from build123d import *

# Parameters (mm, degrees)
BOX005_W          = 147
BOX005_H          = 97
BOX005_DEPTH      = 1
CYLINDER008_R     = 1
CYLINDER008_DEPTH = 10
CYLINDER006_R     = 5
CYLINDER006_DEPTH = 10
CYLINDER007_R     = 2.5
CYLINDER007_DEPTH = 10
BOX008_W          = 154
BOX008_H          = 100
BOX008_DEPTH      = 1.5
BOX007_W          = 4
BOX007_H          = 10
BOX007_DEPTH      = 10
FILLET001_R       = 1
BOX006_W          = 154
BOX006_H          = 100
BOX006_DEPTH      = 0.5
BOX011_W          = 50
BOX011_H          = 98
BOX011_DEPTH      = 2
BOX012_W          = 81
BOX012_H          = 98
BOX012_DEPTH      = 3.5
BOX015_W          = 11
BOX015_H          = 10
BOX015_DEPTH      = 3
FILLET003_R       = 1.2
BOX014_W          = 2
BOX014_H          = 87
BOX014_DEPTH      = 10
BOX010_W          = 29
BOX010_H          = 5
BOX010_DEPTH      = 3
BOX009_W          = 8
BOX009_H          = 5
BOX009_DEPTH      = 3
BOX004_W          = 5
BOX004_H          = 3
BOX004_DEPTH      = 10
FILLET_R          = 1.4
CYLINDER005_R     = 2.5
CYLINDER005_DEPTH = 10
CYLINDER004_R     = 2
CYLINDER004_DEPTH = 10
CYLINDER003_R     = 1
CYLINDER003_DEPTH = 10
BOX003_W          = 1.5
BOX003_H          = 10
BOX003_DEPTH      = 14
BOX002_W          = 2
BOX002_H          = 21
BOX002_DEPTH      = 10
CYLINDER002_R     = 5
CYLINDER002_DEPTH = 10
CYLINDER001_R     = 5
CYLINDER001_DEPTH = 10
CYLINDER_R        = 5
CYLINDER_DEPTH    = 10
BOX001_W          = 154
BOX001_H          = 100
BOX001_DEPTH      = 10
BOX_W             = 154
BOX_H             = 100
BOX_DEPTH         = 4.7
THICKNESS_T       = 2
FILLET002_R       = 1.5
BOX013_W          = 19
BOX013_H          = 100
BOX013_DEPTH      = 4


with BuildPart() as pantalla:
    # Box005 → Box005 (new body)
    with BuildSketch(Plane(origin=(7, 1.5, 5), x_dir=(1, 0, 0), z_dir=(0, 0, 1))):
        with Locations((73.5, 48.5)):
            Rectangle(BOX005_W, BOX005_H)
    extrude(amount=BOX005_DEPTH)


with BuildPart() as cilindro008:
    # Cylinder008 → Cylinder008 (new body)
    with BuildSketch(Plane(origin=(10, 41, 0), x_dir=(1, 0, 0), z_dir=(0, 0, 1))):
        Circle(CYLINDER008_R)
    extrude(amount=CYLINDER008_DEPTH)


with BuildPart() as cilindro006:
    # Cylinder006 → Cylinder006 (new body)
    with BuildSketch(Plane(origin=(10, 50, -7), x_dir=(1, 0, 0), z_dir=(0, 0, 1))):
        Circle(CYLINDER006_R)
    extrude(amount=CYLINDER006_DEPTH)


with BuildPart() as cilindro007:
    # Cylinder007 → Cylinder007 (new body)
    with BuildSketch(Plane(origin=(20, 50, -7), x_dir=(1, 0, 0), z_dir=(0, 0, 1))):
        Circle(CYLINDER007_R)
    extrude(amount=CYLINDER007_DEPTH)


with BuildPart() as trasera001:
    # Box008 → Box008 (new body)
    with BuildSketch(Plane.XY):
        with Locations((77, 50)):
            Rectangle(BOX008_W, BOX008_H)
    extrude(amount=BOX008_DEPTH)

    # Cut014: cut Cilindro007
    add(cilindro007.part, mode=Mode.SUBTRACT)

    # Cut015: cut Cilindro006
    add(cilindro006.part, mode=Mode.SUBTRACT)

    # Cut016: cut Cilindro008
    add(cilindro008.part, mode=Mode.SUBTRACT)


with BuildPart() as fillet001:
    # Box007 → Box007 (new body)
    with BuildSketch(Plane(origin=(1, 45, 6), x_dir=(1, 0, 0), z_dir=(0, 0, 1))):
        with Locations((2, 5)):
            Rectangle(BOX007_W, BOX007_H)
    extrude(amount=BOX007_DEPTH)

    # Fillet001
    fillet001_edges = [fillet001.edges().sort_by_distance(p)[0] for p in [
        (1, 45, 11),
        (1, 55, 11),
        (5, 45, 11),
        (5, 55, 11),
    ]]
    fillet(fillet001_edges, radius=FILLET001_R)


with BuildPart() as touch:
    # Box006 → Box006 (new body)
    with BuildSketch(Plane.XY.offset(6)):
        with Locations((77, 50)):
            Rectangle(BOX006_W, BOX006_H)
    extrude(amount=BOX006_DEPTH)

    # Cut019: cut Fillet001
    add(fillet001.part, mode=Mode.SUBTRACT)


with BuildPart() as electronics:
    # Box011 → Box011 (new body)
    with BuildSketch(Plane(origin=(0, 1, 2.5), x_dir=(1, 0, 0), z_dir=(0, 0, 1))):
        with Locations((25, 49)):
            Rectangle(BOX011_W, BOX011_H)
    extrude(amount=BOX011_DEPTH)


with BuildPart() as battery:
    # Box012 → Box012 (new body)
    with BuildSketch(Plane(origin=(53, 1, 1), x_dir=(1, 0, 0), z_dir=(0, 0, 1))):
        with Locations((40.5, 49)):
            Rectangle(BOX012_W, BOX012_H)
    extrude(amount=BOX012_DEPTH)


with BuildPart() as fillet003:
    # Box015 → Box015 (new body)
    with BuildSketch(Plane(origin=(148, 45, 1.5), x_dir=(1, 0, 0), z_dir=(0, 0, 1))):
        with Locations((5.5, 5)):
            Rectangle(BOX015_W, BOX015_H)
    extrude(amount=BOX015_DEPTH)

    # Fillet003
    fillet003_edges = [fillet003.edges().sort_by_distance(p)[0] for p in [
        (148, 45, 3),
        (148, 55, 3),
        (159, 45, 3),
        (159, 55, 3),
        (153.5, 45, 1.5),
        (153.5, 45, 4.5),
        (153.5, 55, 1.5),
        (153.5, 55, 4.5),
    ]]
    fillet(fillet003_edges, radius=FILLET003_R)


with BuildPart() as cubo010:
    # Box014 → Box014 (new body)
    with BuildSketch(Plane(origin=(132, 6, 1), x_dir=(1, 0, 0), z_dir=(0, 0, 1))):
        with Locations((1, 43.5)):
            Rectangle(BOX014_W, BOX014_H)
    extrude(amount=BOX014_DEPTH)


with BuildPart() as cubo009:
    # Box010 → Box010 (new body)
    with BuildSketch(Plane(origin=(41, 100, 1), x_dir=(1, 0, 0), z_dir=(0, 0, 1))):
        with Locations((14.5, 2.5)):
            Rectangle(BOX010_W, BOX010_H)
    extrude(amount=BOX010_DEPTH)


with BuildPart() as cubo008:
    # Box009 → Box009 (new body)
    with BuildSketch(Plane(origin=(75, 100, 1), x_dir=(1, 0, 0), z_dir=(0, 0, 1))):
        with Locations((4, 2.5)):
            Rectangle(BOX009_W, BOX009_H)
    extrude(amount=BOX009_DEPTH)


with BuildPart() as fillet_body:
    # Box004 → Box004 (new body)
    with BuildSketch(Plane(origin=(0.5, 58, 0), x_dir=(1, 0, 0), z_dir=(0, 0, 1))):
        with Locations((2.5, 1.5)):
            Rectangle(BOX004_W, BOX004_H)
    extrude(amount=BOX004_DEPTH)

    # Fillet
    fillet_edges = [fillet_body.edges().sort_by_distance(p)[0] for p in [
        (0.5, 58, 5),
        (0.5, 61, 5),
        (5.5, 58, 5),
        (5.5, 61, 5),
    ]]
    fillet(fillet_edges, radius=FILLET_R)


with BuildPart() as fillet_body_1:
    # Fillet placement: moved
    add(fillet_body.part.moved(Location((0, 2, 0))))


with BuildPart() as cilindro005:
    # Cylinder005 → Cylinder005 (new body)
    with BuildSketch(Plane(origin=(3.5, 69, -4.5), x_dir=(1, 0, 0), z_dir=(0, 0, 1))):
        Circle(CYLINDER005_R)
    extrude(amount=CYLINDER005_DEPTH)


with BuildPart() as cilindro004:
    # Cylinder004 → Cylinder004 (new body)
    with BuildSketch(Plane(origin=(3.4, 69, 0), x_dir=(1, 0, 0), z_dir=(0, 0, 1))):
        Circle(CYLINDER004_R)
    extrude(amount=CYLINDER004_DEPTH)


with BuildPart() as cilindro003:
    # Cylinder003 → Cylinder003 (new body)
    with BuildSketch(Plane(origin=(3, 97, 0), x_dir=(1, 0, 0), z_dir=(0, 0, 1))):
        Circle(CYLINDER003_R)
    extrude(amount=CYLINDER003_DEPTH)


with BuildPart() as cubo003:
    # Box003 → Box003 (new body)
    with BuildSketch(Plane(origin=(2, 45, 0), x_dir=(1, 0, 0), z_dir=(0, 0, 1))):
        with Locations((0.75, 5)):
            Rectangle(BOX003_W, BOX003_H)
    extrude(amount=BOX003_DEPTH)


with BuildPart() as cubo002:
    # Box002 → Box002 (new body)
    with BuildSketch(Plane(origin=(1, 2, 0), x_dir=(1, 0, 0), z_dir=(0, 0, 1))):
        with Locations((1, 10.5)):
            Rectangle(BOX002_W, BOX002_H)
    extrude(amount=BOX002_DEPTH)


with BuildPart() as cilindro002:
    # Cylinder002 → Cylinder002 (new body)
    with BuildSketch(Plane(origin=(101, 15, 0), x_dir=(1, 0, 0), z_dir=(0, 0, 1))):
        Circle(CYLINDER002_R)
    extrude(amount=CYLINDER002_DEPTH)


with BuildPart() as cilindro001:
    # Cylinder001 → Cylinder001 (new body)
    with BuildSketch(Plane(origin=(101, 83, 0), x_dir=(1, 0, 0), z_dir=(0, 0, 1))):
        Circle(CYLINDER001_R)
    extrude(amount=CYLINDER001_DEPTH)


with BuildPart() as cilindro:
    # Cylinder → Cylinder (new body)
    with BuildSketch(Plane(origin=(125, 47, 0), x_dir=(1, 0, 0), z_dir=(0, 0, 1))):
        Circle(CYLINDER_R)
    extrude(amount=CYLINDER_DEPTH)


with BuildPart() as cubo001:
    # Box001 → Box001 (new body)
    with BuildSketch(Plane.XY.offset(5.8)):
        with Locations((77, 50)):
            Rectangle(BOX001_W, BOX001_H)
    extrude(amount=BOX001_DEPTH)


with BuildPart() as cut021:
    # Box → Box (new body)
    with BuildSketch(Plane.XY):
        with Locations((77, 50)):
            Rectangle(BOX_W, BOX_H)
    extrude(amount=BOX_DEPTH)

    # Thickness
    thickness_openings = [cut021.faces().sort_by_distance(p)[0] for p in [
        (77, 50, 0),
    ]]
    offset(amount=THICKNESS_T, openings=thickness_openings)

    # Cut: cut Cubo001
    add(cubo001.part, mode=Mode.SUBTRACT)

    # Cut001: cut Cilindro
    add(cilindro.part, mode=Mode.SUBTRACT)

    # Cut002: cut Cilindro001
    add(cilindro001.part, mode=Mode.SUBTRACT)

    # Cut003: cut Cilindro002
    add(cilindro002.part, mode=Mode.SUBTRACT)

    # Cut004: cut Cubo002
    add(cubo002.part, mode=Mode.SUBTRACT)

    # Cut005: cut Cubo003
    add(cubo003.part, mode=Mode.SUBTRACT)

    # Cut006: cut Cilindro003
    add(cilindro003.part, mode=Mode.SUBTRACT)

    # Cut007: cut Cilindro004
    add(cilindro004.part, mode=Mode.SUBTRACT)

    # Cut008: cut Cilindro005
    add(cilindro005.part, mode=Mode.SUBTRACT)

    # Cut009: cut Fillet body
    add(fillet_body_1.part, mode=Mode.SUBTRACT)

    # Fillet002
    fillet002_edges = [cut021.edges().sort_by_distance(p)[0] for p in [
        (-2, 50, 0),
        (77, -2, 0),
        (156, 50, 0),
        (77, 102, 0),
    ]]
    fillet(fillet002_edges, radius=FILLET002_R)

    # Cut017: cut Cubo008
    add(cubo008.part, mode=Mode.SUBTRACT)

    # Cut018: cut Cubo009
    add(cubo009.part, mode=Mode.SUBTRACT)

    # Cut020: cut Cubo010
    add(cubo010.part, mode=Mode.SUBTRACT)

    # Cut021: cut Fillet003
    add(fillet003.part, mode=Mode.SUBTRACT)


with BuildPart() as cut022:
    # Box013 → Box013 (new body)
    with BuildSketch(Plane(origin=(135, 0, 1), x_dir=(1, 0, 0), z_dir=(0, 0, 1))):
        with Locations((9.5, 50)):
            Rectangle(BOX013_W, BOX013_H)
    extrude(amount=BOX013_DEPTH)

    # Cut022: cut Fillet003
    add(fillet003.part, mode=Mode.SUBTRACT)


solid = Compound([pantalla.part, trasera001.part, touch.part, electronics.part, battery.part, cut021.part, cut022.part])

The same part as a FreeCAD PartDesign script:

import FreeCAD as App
import Part
import Sketcher

V = App.Vector
Q = App.Units.Quantity


def edges_at(feature, points):
    """Names of the edges that pass closest to the given points."""
    edges = feature.Shape.Edges
    near = lambda p: min(range(len(edges)), key=lambda i: edges[i].distToShape(Part.Vertex(*p))[0])
    return sorted({f"Edge{near(p) + 1}" for p in points})


def faces_at(feature, points):
    """Names of the faces that lie closest to the given points."""
    faces = feature.Shape.Faces
    near = lambda p: min(range(len(faces)), key=lambda i: faces[i].distToShape(Part.Vertex(*p))[0])
    return sorted({f"Face{near(p) + 1}" for p in points})


def add_polygon(sketch, points):
    """Adds a closed chain of lines whose ends are joined by coincident constraints."""
    first, n = sketch.GeometryCount, len(points)
    for a, b in zip(points, points[1:] + points[:1]):
        sketch.addGeometry(Part.LineSegment(App.Vector(*a, 0), App.Vector(*b, 0)), False)
    for i in range(n):
        sketch.addConstraint(Sketcher.Constraint("Coincident", first + i, 2, first + (i + 1) % n, 1))

doc = App.newDocument("Part")
body = doc.addObject("PartDesign::Body", "Body")

# Sketch on XY plane
sketch1 = body.newObject("Sketcher::SketchObject", "Sketch")
sketch1.AttachmentSupport = (doc.getObject("XY_Plane"), [""])
sketch1.MapMode = "FlatFace"
sketch1.AttachmentOffset = App.Placement(V(0, 0, 5), App.Rotation())
add_polygon(sketch1, [(7, 98.5), (7, 1.5), (154, 1.5), (154, 98.5)])  # lines 0-3
sketch1.addConstraint(Sketcher.Constraint("Vertical", 0))
sketch1.addConstraint(Sketcher.Constraint("Horizontal", 1))
sketch1.addConstraint(Sketcher.Constraint("Vertical", 2))
sketch1.addConstraint(Sketcher.Constraint("Horizontal", 3))
sketch1.addConstraint(Sketcher.Constraint("DistanceX", 1, 1, 1, 2, Q("147 mm")))
sketch1.addConstraint(Sketcher.Constraint("DistanceY", 0, 2, 0, 1, Q("97 mm")))
sketch1.addConstraint(Sketcher.Constraint("DistanceX", -1, 1, 0, 2, Q("7 mm")))
sketch1.addConstraint(Sketcher.Constraint("DistanceY", -1, 1, 0, 2, Q("1.5 mm")))
pad1 = body.newObject("PartDesign::Pad", "Pad")
pad1.Profile = sketch1
pad1.Length = 1
body2 = doc.addObject("PartDesign::Body", "Body001")

# Sketch on XY plane
sketch2 = body2.newObject("Sketcher::SketchObject", "Sketch001")
sketch2.AttachmentSupport = (doc.getObject("XY_Plane001"), [""])
sketch2.MapMode = "FlatFace"
sketch2.addGeometry(Part.Circle(V(10, 41, 0), V(0, 0, 1), 1), False)
sketch2.addConstraint(Sketcher.Constraint("Diameter", 0, Q("2 mm")))
sketch2.addConstraint(Sketcher.Constraint("DistanceX", -1, 1, 0, 3, Q("10 mm")))
sketch2.addConstraint(Sketcher.Constraint("DistanceY", -1, 1, 0, 3, Q("41 mm")))
pad2 = body2.newObject("PartDesign::Pad", "Pad001")
pad2.Profile = sketch2
pad2.Length = 10
body3 = doc.addObject("PartDesign::Body", "Body002")

# Sketch on XY plane
sketch3 = body3.newObject("Sketcher::SketchObject", "Sketch002")
sketch3.AttachmentSupport = (doc.getObject("XY_Plane002"), [""])
sketch3.MapMode = "FlatFace"
sketch3.AttachmentOffset = App.Placement(V(0, 0, -7), App.Rotation())
sketch3.addGeometry(Part.Circle(V(10, 50, 0), V(0, 0, 1), 5), False)
sketch3.addConstraint(Sketcher.Constraint("Diameter", 0, Q("10 mm")))
sketch3.addConstraint(Sketcher.Constraint("DistanceX", -1, 1, 0, 3, Q("10 mm")))
sketch3.addConstraint(Sketcher.Constraint("DistanceY", -1, 1, 0, 3, Q("50 mm")))
pad3 = body3.newObject("PartDesign::Pad", "Pad002")
pad3.Profile = sketch3
pad3.Length = 10
body4 = doc.addObject("PartDesign::Body", "Body003")

# Sketch on XY plane
sketch4 = body4.newObject("Sketcher::SketchObject", "Sketch003")
sketch4.AttachmentSupport = (doc.getObject("XY_Plane003"), [""])
sketch4.MapMode = "FlatFace"
sketch4.AttachmentOffset = App.Placement(V(0, 0, -7), App.Rotation())
sketch4.addGeometry(Part.Circle(V(20, 50, 0), V(0, 0, 1), 2.5), False)
sketch4.addConstraint(Sketcher.Constraint("Diameter", 0, Q("5 mm")))
sketch4.addConstraint(Sketcher.Constraint("DistanceX", -1, 1, 0, 3, Q("20 mm")))
sketch4.addConstraint(Sketcher.Constraint("DistanceY", -1, 1, 0, 3, Q("50 mm")))
pad4 = body4.newObject("PartDesign::Pad", "Pad003")
pad4.Profile = sketch4
pad4.Length = 10
body5 = doc.addObject("PartDesign::Body", "Body004")

# Sketch on XY plane
sketch5 = body5.newObject("Sketcher::SketchObject", "Sketch004")
sketch5.AttachmentSupport = (doc.getObject("XY_Plane004"), [""])
sketch5.MapMode = "FlatFace"
add_polygon(sketch5, [(0, 100), (0, 0), (154, 0), (154, 100)])  # lines 0-3
sketch5.addConstraint(Sketcher.Constraint("Vertical", 0))
sketch5.addConstraint(Sketcher.Constraint("Horizontal", 1))
sketch5.addConstraint(Sketcher.Constraint("Vertical", 2))
sketch5.addConstraint(Sketcher.Constraint("Horizontal", 3))
sketch5.addConstraint(Sketcher.Constraint("Coincident", 0, 2, -1, 1))
sketch5.addConstraint(Sketcher.Constraint("DistanceX", 1, 1, 1, 2, Q("154 mm")))
sketch5.addConstraint(Sketcher.Constraint("DistanceY", 0, 2, 0, 1, Q("100 mm")))
pad5 = body5.newObject("PartDesign::Pad", "Pad004")
pad5.Profile = sketch5
pad5.Length = 1.5
doc.recompute()

boolean = body5.newObject("PartDesign::Boolean", "Boolean")
boolean.Type = "Cut"
boolean.addObjects([body4])
doc.recompute()

boolean2 = body5.newObject("PartDesign::Boolean", "Boolean001")
boolean2.Type = "Cut"
boolean2.addObjects([body3])
doc.recompute()

boolean3 = body5.newObject("PartDesign::Boolean", "Boolean002")
boolean3.Type = "Cut"
boolean3.addObjects([body2])
body6 = doc.addObject("PartDesign::Body", "Body005")

# Sketch on XY plane
sketch6 = body6.newObject("Sketcher::SketchObject", "Sketch005")
sketch6.AttachmentSupport = (doc.getObject("XY_Plane005"), [""])
sketch6.MapMode = "FlatFace"
sketch6.AttachmentOffset = App.Placement(V(0, 0, 6), App.Rotation())
add_polygon(sketch6, [(1, 55), (1, 45), (5, 45), (5, 55)])  # lines 0-3
sketch6.addConstraint(Sketcher.Constraint("Vertical", 0))
sketch6.addConstraint(Sketcher.Constraint("Horizontal", 1))
sketch6.addConstraint(Sketcher.Constraint("Vertical", 2))
sketch6.addConstraint(Sketcher.Constraint("Horizontal", 3))
sketch6.addConstraint(Sketcher.Constraint("DistanceX", 1, 1, 1, 2, Q("4 mm")))
sketch6.addConstraint(Sketcher.Constraint("DistanceY", 0, 2, 0, 1, Q("10 mm")))
sketch6.addConstraint(Sketcher.Constraint("DistanceX", -1, 1, 0, 2, Q("1 mm")))
sketch6.addConstraint(Sketcher.Constraint("DistanceY", -1, 1, 0, 2, Q("45 mm")))
pad6 = body6.newObject("PartDesign::Pad", "Pad005")
pad6.Profile = sketch6
pad6.Length = 10
doc.recompute()

fillet = body6.newObject("PartDesign::Fillet", "Fillet")
fillet.Base = (pad6, edges_at(pad6, [
    (1, 45, 11),
    (1, 55, 11),
    (5, 45, 11),
    (5, 55, 11),
]))
fillet.Radius = 1
body7 = doc.addObject("PartDesign::Body", "Body006")

# Sketch on XY plane
sketch7 = body7.newObject("Sketcher::SketchObject", "Sketch006")
sketch7.AttachmentSupport = (doc.getObject("XY_Plane006"), [""])
sketch7.MapMode = "FlatFace"
sketch7.AttachmentOffset = App.Placement(V(0, 0, 6), App.Rotation())
add_polygon(sketch7, [(0, 100), (0, 0), (154, 0), (154, 100)])  # lines 0-3
sketch7.addConstraint(Sketcher.Constraint("Vertical", 0))
sketch7.addConstraint(Sketcher.Constraint("Horizontal", 1))
sketch7.addConstraint(Sketcher.Constraint("Vertical", 2))
sketch7.addConstraint(Sketcher.Constraint("Horizontal", 3))
sketch7.addConstraint(Sketcher.Constraint("Coincident", 0, 2, -1, 1))
sketch7.addConstraint(Sketcher.Constraint("DistanceX", 1, 1, 1, 2, Q("154 mm")))
sketch7.addConstraint(Sketcher.Constraint("DistanceY", 0, 2, 0, 1, Q("100 mm")))
pad7 = body7.newObject("PartDesign::Pad", "Pad006")
pad7.Profile = sketch7
pad7.Length = 0.5
doc.recompute()

boolean4 = body7.newObject("PartDesign::Boolean", "Boolean003")
boolean4.Type = "Cut"
boolean4.addObjects([body6])
body8 = doc.addObject("PartDesign::Body", "Body007")

# Sketch on XY plane
sketch8 = body8.newObject("Sketcher::SketchObject", "Sketch007")
sketch8.AttachmentSupport = (doc.getObject("XY_Plane007"), [""])
sketch8.MapMode = "FlatFace"
sketch8.AttachmentOffset = App.Placement(V(0, 0, 2.5), App.Rotation())
add_polygon(sketch8, [(0, 99), (0, 1), (50, 1), (50, 99)])  # lines 0-3
sketch8.addConstraint(Sketcher.Constraint("Vertical", 0))
sketch8.addConstraint(Sketcher.Constraint("Horizontal", 1))
sketch8.addConstraint(Sketcher.Constraint("Vertical", 2))
sketch8.addConstraint(Sketcher.Constraint("Horizontal", 3))
sketch8.addConstraint(Sketcher.Constraint("PointOnObject", 0, 2, -2))
sketch8.addConstraint(Sketcher.Constraint("DistanceX", 1, 1, 1, 2, Q("50 mm")))
sketch8.addConstraint(Sketcher.Constraint("DistanceY", 0, 2, 0, 1, Q("98 mm")))
sketch8.addConstraint(Sketcher.Constraint("DistanceY", -1, 1, 0, 2, Q("1 mm")))
pad8 = body8.newObject("PartDesign::Pad", "Pad007")
pad8.Profile = sketch8
pad8.Length = 2
body9 = doc.addObject("PartDesign::Body", "Body008")

# Sketch on XY plane
sketch9 = body9.newObject("Sketcher::SketchObject", "Sketch008")
sketch9.AttachmentSupport = (doc.getObject("XY_Plane008"), [""])
sketch9.MapMode = "FlatFace"
sketch9.AttachmentOffset = App.Placement(V(0, 0, 1), App.Rotation())
add_polygon(sketch9, [(53, 99), (53, 1), (134, 1), (134, 99)])  # lines 0-3
sketch9.addConstraint(Sketcher.Constraint("Vertical", 0))
sketch9.addConstraint(Sketcher.Constraint("Horizontal", 1))
sketch9.addConstraint(Sketcher.Constraint("Vertical", 2))
sketch9.addConstraint(Sketcher.Constraint("Horizontal", 3))
sketch9.addConstraint(Sketcher.Constraint("DistanceX", 1, 1, 1, 2, Q("81 mm")))
sketch9.addConstraint(Sketcher.Constraint("DistanceY", 0, 2, 0, 1, Q("98 mm")))
sketch9.addConstraint(Sketcher.Constraint("DistanceX", -1, 1, 0, 2, Q("53 mm")))
sketch9.addConstraint(Sketcher.Constraint("DistanceY", -1, 1, 0, 2, Q("1 mm")))
pad9 = body9.newObject("PartDesign::Pad", "Pad008")
pad9.Profile = sketch9
pad9.Length = 3.5
body10 = doc.addObject("PartDesign::Body", "Body009")

# Sketch on XY plane
sketch10 = body10.newObject("Sketcher::SketchObject", "Sketch009")
sketch10.AttachmentSupport = (doc.getObject("XY_Plane009"), [""])
sketch10.MapMode = "FlatFace"
sketch10.AttachmentOffset = App.Placement(V(0, 0, 1.5), App.Rotation())
add_polygon(sketch10, [(148, 55), (148, 45), (159, 45), (159, 55)])  # lines 0-3
sketch10.addConstraint(Sketcher.Constraint("Vertical", 0))
sketch10.addConstraint(Sketcher.Constraint("Horizontal", 1))
sketch10.addConstraint(Sketcher.Constraint("Vertical", 2))
sketch10.addConstraint(Sketcher.Constraint("Horizontal", 3))
sketch10.addConstraint(Sketcher.Constraint("DistanceX", 1, 1, 1, 2, Q("11 mm")))
sketch10.addConstraint(Sketcher.Constraint("DistanceY", 0, 2, 0, 1, Q("10 mm")))
sketch10.addConstraint(Sketcher.Constraint("DistanceX", -1, 1, 0, 2, Q("148 mm")))
sketch10.addConstraint(Sketcher.Constraint("DistanceY", -1, 1, 0, 2, Q("45 mm")))
pad10 = body10.newObject("PartDesign::Pad", "Pad009")
pad10.Profile = sketch10
pad10.Length = 3
doc.recompute()

fillet2 = body10.newObject("PartDesign::Fillet", "Fillet001")
fillet2.Base = (pad10, edges_at(pad10, [
    (148, 45, 3),
    (148, 55, 3),
    (159, 45, 3),
    (159, 55, 3),
    (153.5, 45, 1.5),
    (153.5, 45, 4.5),
    (153.5, 55, 1.5),
    (153.5, 55, 4.5),
]))
fillet2.Radius = 1.2
body11 = doc.addObject("PartDesign::Body", "Body010")

# Sketch on XY plane
sketch11 = body11.newObject("Sketcher::SketchObject", "Sketch010")
sketch11.AttachmentSupport = (doc.getObject("XY_Plane010"), [""])
sketch11.MapMode = "FlatFace"
sketch11.AttachmentOffset = App.Placement(V(0, 0, 1), App.Rotation())
add_polygon(sketch11, [(132, 93), (132, 6), (134, 6), (134, 93)])  # lines 0-3
sketch11.addConstraint(Sketcher.Constraint("Vertical", 0))
sketch11.addConstraint(Sketcher.Constraint("Horizontal", 1))
sketch11.addConstraint(Sketcher.Constraint("Vertical", 2))
sketch11.addConstraint(Sketcher.Constraint("Horizontal", 3))
sketch11.addConstraint(Sketcher.Constraint("DistanceX", 1, 1, 1, 2, Q("2 mm")))
sketch11.addConstraint(Sketcher.Constraint("DistanceY", 0, 2, 0, 1, Q("87 mm")))
sketch11.addConstraint(Sketcher.Constraint("DistanceX", -1, 1, 0, 2, Q("132 mm")))
sketch11.addConstraint(Sketcher.Constraint("DistanceY", -1, 1, 0, 2, Q("6 mm")))
pad11 = body11.newObject("PartDesign::Pad", "Pad010")
pad11.Profile = sketch11
pad11.Length = 10
body12 = doc.addObject("PartDesign::Body", "Body011")

# Sketch on XY plane
sketch12 = body12.newObject("Sketcher::SketchObject", "Sketch011")
sketch12.AttachmentSupport = (doc.getObject("XY_Plane011"), [""])
sketch12.MapMode = "FlatFace"
sketch12.AttachmentOffset = App.Placement(V(0, 0, 1), App.Rotation())
add_polygon(sketch12, [(41, 105), (41, 100), (70, 100), (70, 105)])  # lines 0-3
sketch12.addConstraint(Sketcher.Constraint("Vertical", 0))
sketch12.addConstraint(Sketcher.Constraint("Horizontal", 1))
sketch12.addConstraint(Sketcher.Constraint("Vertical", 2))
sketch12.addConstraint(Sketcher.Constraint("Horizontal", 3))
sketch12.addConstraint(Sketcher.Constraint("DistanceX", 1, 1, 1, 2, Q("29 mm")))
sketch12.addConstraint(Sketcher.Constraint("DistanceY", 0, 2, 0, 1, Q("5 mm")))
sketch12.addConstraint(Sketcher.Constraint("DistanceX", -1, 1, 0, 2, Q("41 mm")))
sketch12.addConstraint(Sketcher.Constraint("DistanceY", -1, 1, 0, 2, Q("100 mm")))
pad12 = body12.newObject("PartDesign::Pad", "Pad011")
pad12.Profile = sketch12
pad12.Length = 3
body13 = doc.addObject("PartDesign::Body", "Body012")

# Sketch on XY plane
sketch13 = body13.newObject("Sketcher::SketchObject", "Sketch012")
sketch13.AttachmentSupport = (doc.getObject("XY_Plane012"), [""])
sketch13.MapMode = "FlatFace"
sketch13.AttachmentOffset = App.Placement(V(0, 0, 1), App.Rotation())
add_polygon(sketch13, [(75, 105), (75, 100), (83, 100), (83, 105)])  # lines 0-3
sketch13.addConstraint(Sketcher.Constraint("Vertical", 0))
sketch13.addConstraint(Sketcher.Constraint("Horizontal", 1))
sketch13.addConstraint(Sketcher.Constraint("Vertical", 2))
sketch13.addConstraint(Sketcher.Constraint("Horizontal", 3))
sketch13.addConstraint(Sketcher.Constraint("DistanceX", 1, 1, 1, 2, Q("8 mm")))
sketch13.addConstraint(Sketcher.Constraint("DistanceY", 0, 2, 0, 1, Q("5 mm")))
sketch13.addConstraint(Sketcher.Constraint("DistanceX", -1, 1, 0, 2, Q("75 mm")))
sketch13.addConstraint(Sketcher.Constraint("DistanceY", -1, 1, 0, 2, Q("100 mm")))
pad13 = body13.newObject("PartDesign::Pad", "Pad012")
pad13.Profile = sketch13
pad13.Length = 3
body14 = doc.addObject("PartDesign::Body", "Body013")

# Sketch on XY plane
sketch14 = body14.newObject("Sketcher::SketchObject", "Sketch013")
sketch14.AttachmentSupport = (doc.getObject("XY_Plane013"), [""])
sketch14.MapMode = "FlatFace"
add_polygon(sketch14, [(0.5, 61), (0.5, 58), (5.5, 58), (5.5, 61)])  # lines 0-3
sketch14.addConstraint(Sketcher.Constraint("Vertical", 0))
sketch14.addConstraint(Sketcher.Constraint("Horizontal", 1))
sketch14.addConstraint(Sketcher.Constraint("Vertical", 2))
sketch14.addConstraint(Sketcher.Constraint("Horizontal", 3))
sketch14.addConstraint(Sketcher.Constraint("DistanceX", 1, 1, 1, 2, Q("5 mm")))
sketch14.addConstraint(Sketcher.Constraint("DistanceY", 0, 2, 0, 1, Q("3 mm")))
sketch14.addConstraint(Sketcher.Constraint("DistanceY", -1, 1, 0, 2, Q("58 mm")))
sketch14.addConstraint(Sketcher.Constraint("DistanceX", -1, 1, 0, 2, Q("0.5 mm")))
pad14 = body14.newObject("PartDesign::Pad", "Pad013")
pad14.Profile = sketch14
pad14.Length = 10
doc.recompute()

fillet3 = body14.newObject("PartDesign::Fillet", "Fillet002")
fillet3.Base = (pad14, edges_at(pad14, [
    (0.5, 58, 5),
    (0.5, 61, 5),
    (5.5, 58, 5),
    (5.5, 61, 5),
]))
fillet3.Radius = 1.4
body15 = doc.addObject("PartDesign::Body", "Body014")
doc.recompute()

body14.Placement = App.Placement(V(0, 2, 0), App.Rotation(V(0, 0, 1), 0))
boolean5 = body15.newObject("PartDesign::Boolean", "Boolean004")
boolean5.Type = "Fuse"
boolean5.addObjects([body14])
body16 = doc.addObject("PartDesign::Body", "Body015")

# Sketch on XY plane
sketch15 = body16.newObject("Sketcher::SketchObject", "Sketch014")
sketch15.AttachmentSupport = (doc.getObject("XY_Plane015"), [""])
sketch15.MapMode = "FlatFace"
sketch15.AttachmentOffset = App.Placement(V(0, 0, -4.5), App.Rotation())
sketch15.addGeometry(Part.Circle(V(3.5, 69, 0), V(0, 0, 1), 2.5), False)
sketch15.addConstraint(Sketcher.Constraint("Diameter", 0, Q("5 mm")))
sketch15.addConstraint(Sketcher.Constraint("DistanceY", -1, 1, 0, 3, Q("69 mm")))
sketch15.addConstraint(Sketcher.Constraint("DistanceX", -1, 1, 0, 3, Q("3.5 mm")))
pad15 = body16.newObject("PartDesign::Pad", "Pad014")
pad15.Profile = sketch15
pad15.Length = 10
body17 = doc.addObject("PartDesign::Body", "Body016")

# Sketch on XY plane
sketch16 = body17.newObject("Sketcher::SketchObject", "Sketch015")
sketch16.AttachmentSupport = (doc.getObject("XY_Plane016"), [""])
sketch16.MapMode = "FlatFace"
sketch16.addGeometry(Part.Circle(V(3.4, 69, 0), V(0, 0, 1), 2), False)
sketch16.addConstraint(Sketcher.Constraint("Diameter", 0, Q("4 mm")))
sketch16.addConstraint(Sketcher.Constraint("DistanceY", -1, 1, 0, 3, Q("69 mm")))
sketch16.addConstraint(Sketcher.Constraint("DistanceX", -1, 1, 0, 3, Q("3.4 mm")))
pad16 = body17.newObject("PartDesign::Pad", "Pad015")
pad16.Profile = sketch16
pad16.Length = 10
body18 = doc.addObject("PartDesign::Body", "Body017")

# Sketch on XY plane
sketch17 = body18.newObject("Sketcher::SketchObject", "Sketch016")
sketch17.AttachmentSupport = (doc.getObject("XY_Plane017"), [""])
sketch17.MapMode = "FlatFace"
sketch17.addGeometry(Part.Circle(V(3, 97, 0), V(0, 0, 1), 1), False)
sketch17.addConstraint(Sketcher.Constraint("Diameter", 0, Q("2 mm")))
sketch17.addConstraint(Sketcher.Constraint("DistanceX", -1, 1, 0, 3, Q("3 mm")))
sketch17.addConstraint(Sketcher.Constraint("DistanceY", -1, 1, 0, 3, Q("97 mm")))
pad17 = body18.newObject("PartDesign::Pad", "Pad016")
pad17.Profile = sketch17
pad17.Length = 10
body19 = doc.addObject("PartDesign::Body", "Body018")

# Sketch on XY plane
sketch18 = body19.newObject("Sketcher::SketchObject", "Sketch017")
sketch18.AttachmentSupport = (doc.getObject("XY_Plane018"), [""])
sketch18.MapMode = "FlatFace"
add_polygon(sketch18, [(2, 55), (2, 45), (3.5, 45), (3.5, 55)])  # lines 0-3
sketch18.addConstraint(Sketcher.Constraint("Vertical", 0))
sketch18.addConstraint(Sketcher.Constraint("Horizontal", 1))
sketch18.addConstraint(Sketcher.Constraint("Vertical", 2))
sketch18.addConstraint(Sketcher.Constraint("Horizontal", 3))
sketch18.addConstraint(Sketcher.Constraint("DistanceY", 0, 2, 0, 1, Q("10 mm")))
sketch18.addConstraint(Sketcher.Constraint("DistanceX", 1, 1, 1, 2, Q("1.5 mm")))
sketch18.addConstraint(Sketcher.Constraint("DistanceX", -1, 1, 0, 2, Q("2 mm")))
sketch18.addConstraint(Sketcher.Constraint("DistanceY", -1, 1, 0, 2, Q("45 mm")))
pad18 = body19.newObject("PartDesign::Pad", "Pad017")
pad18.Profile = sketch18
pad18.Length = 14
body20 = doc.addObject("PartDesign::Body", "Body019")

# Sketch on XY plane
sketch19 = body20.newObject("Sketcher::SketchObject", "Sketch018")
sketch19.AttachmentSupport = (doc.getObject("XY_Plane019"), [""])
sketch19.MapMode = "FlatFace"
add_polygon(sketch19, [(1, 23), (1, 2), (3, 2), (3, 23)])  # lines 0-3
sketch19.addConstraint(Sketcher.Constraint("Vertical", 0))
sketch19.addConstraint(Sketcher.Constraint("Horizontal", 1))
sketch19.addConstraint(Sketcher.Constraint("Vertical", 2))
sketch19.addConstraint(Sketcher.Constraint("Horizontal", 3))
sketch19.addConstraint(Sketcher.Constraint("DistanceX", 1, 1, 1, 2, Q("2 mm")))
sketch19.addConstraint(Sketcher.Constraint("DistanceY", 0, 2, 0, 1, Q("21 mm")))
sketch19.addConstraint(Sketcher.Constraint("DistanceX", -1, 1, 0, 2, Q("1 mm")))
sketch19.addConstraint(Sketcher.Constraint("DistanceY", -1, 1, 0, 2, Q("2 mm")))
pad19 = body20.newObject("PartDesign::Pad", "Pad018")
pad19.Profile = sketch19
pad19.Length = 10
body21 = doc.addObject("PartDesign::Body", "Body020")

# Sketch on XY plane
sketch20 = body21.newObject("Sketcher::SketchObject", "Sketch019")
sketch20.AttachmentSupport = (doc.getObject("XY_Plane020"), [""])
sketch20.MapMode = "FlatFace"
sketch20.addGeometry(Part.Circle(V(101, 15, 0), V(0, 0, 1), 5), False)
sketch20.addConstraint(Sketcher.Constraint("Diameter", 0, Q("10 mm")))
sketch20.addConstraint(Sketcher.Constraint("DistanceX", -1, 1, 0, 3, Q("101 mm")))
sketch20.addConstraint(Sketcher.Constraint("DistanceY", -1, 1, 0, 3, Q("15 mm")))
pad20 = body21.newObject("PartDesign::Pad", "Pad019")
pad20.Profile = sketch20
pad20.Length = 10
body22 = doc.addObject("PartDesign::Body", "Body021")

# Sketch on XY plane
sketch21 = body22.newObject("Sketcher::SketchObject", "Sketch020")
sketch21.AttachmentSupport = (doc.getObject("XY_Plane021"), [""])
sketch21.MapMode = "FlatFace"
sketch21.addGeometry(Part.Circle(V(101, 83, 0), V(0, 0, 1), 5), False)
sketch21.addConstraint(Sketcher.Constraint("Diameter", 0, Q("10 mm")))
sketch21.addConstraint(Sketcher.Constraint("DistanceX", -1, 1, 0, 3, Q("101 mm")))
sketch21.addConstraint(Sketcher.Constraint("DistanceY", -1, 1, 0, 3, Q("83 mm")))
pad21 = body22.newObject("PartDesign::Pad", "Pad020")
pad21.Profile = sketch21
pad21.Length = 10
body23 = doc.addObject("PartDesign::Body", "Body022")

# Sketch on XY plane
sketch22 = body23.newObject("Sketcher::SketchObject", "Sketch021")
sketch22.AttachmentSupport = (doc.getObject("XY_Plane022"), [""])
sketch22.MapMode = "FlatFace"
sketch22.addGeometry(Part.Circle(V(125, 47, 0), V(0, 0, 1), 5), False)
sketch22.addConstraint(Sketcher.Constraint("Diameter", 0, Q("10 mm")))
sketch22.addConstraint(Sketcher.Constraint("DistanceX", -1, 1, 0, 3, Q("125 mm")))
sketch22.addConstraint(Sketcher.Constraint("DistanceY", -1, 1, 0, 3, Q("47 mm")))
pad22 = body23.newObject("PartDesign::Pad", "Pad021")
pad22.Profile = sketch22
pad22.Length = 10
body24 = doc.addObject("PartDesign::Body", "Body023")

# Sketch on XY plane
sketch23 = body24.newObject("Sketcher::SketchObject", "Sketch022")
sketch23.AttachmentSupport = (doc.getObject("XY_Plane023"), [""])
sketch23.MapMode = "FlatFace"
sketch23.AttachmentOffset = App.Placement(V(0, 0, 5.8), App.Rotation())
add_polygon(sketch23, [(0, 100), (0, 0), (154, 0), (154, 100)])  # lines 0-3
sketch23.addConstraint(Sketcher.Constraint("Vertical", 0))
sketch23.addConstraint(Sketcher.Constraint("Horizontal", 1))
sketch23.addConstraint(Sketcher.Constraint("Vertical", 2))
sketch23.addConstraint(Sketcher.Constraint("Horizontal", 3))
sketch23.addConstraint(Sketcher.Constraint("Coincident", 0, 2, -1, 1))
sketch23.addConstraint(Sketcher.Constraint("DistanceX", 1, 1, 1, 2, Q("154 mm")))
sketch23.addConstraint(Sketcher.Constraint("DistanceY", 0, 2, 0, 1, Q("100 mm")))
pad23 = body24.newObject("PartDesign::Pad", "Pad022")
pad23.Profile = sketch23
pad23.Length = 10
body25 = doc.addObject("PartDesign::Body", "Body024")

# Sketch on XY plane
sketch24 = body25.newObject("Sketcher::SketchObject", "Sketch023")
sketch24.AttachmentSupport = (doc.getObject("XY_Plane024"), [""])
sketch24.MapMode = "FlatFace"
add_polygon(sketch24, [(0, 100), (0, 0), (154, 0), (154, 100)])  # lines 0-3
sketch24.addConstraint(Sketcher.Constraint("Vertical", 0))
sketch24.addConstraint(Sketcher.Constraint("Horizontal", 1))
sketch24.addConstraint(Sketcher.Constraint("Vertical", 2))
sketch24.addConstraint(Sketcher.Constraint("Horizontal", 3))
sketch24.addConstraint(Sketcher.Constraint("Coincident", 0, 2, -1, 1))
sketch24.addConstraint(Sketcher.Constraint("DistanceX", 1, 1, 1, 2, Q("154 mm")))
sketch24.addConstraint(Sketcher.Constraint("DistanceY", 0, 2, 0, 1, Q("100 mm")))
pad24 = body25.newObject("PartDesign::Pad", "Pad023")
pad24.Profile = sketch24
pad24.Length = 4.7
doc.recompute()

thickness = body25.newObject("PartDesign::Thickness", "Thickness")
thickness.Base = (pad24, faces_at(pad24, [(77, 50, 0)]))
thickness.Value = 2
thickness.Reversed = False
thickness.Join = "Arc"
doc.recompute()

boolean6 = body25.newObject("PartDesign::Boolean", "Boolean005")
boolean6.Type = "Cut"
boolean6.addObjects([body24])
doc.recompute()

boolean7 = body25.newObject("PartDesign::Boolean", "Boolean006")
boolean7.Type = "Cut"
boolean7.addObjects([body23])
doc.recompute()

boolean8 = body25.newObject("PartDesign::Boolean", "Boolean007")
boolean8.Type = "Cut"
boolean8.addObjects([body22])
doc.recompute()

boolean9 = body25.newObject("PartDesign::Boolean", "Boolean008")
boolean9.Type = "Cut"
boolean9.addObjects([body21])
doc.recompute()

boolean10 = body25.newObject("PartDesign::Boolean", "Boolean009")
boolean10.Type = "Cut"
boolean10.addObjects([body20])
doc.recompute()

boolean11 = body25.newObject("PartDesign::Boolean", "Boolean010")
boolean11.Type = "Cut"
boolean11.addObjects([body19])
doc.recompute()

boolean12 = body25.newObject("PartDesign::Boolean", "Boolean011")
boolean12.Type = "Cut"
boolean12.addObjects([body18])
doc.recompute()

boolean13 = body25.newObject("PartDesign::Boolean", "Boolean012")
boolean13.Type = "Cut"
boolean13.addObjects([body17])
doc.recompute()

boolean14 = body25.newObject("PartDesign::Boolean", "Boolean013")
boolean14.Type = "Cut"
boolean14.addObjects([body16])
doc.recompute()

boolean15 = body25.newObject("PartDesign::Boolean", "Boolean014")
boolean15.Type = "Cut"
boolean15.addObjects([body15])
doc.recompute()

fillet4 = body25.newObject("PartDesign::Fillet", "Fillet003")
fillet4.Base = (boolean15, edges_at(boolean15, [
    (-2, 50, 0),
    (77, -2, 0),
    (156, 50, 0),
    (77, 102, 0),
]))
fillet4.Radius = 1.5
doc.recompute()

boolean16 = body25.newObject("PartDesign::Boolean", "Boolean015")
boolean16.Type = "Cut"
boolean16.addObjects([body13])
doc.recompute()

boolean17 = body25.newObject("PartDesign::Boolean", "Boolean016")
boolean17.Type = "Cut"
boolean17.addObjects([body12])
doc.recompute()

boolean18 = body25.newObject("PartDesign::Boolean", "Boolean017")
boolean18.Type = "Cut"
boolean18.addObjects([body11])
doc.recompute()

body26 = doc.addObject("PartDesign::Body", "Body025")
body26.BaseFeature = body10
boolean19 = body25.newObject("PartDesign::Boolean", "Boolean018")
boolean19.Type = "Cut"
boolean19.addObjects([body26])
doc.recompute()
body27 = doc.addObject("PartDesign::Body", "Body026")

# Sketch on XY plane
sketch25 = body27.newObject("Sketcher::SketchObject", "Sketch024")
sketch25.AttachmentSupport = (doc.getObject("XY_Plane026"), [""])
sketch25.MapMode = "FlatFace"
sketch25.AttachmentOffset = App.Placement(V(0, 0, 1), App.Rotation())
add_polygon(sketch25, [(135, 100), (135, 0), (154, 0), (154, 100)])  # lines 0-3
sketch25.addConstraint(Sketcher.Constraint("Vertical", 0))
sketch25.addConstraint(Sketcher.Constraint("Horizontal", 1))
sketch25.addConstraint(Sketcher.Constraint("Vertical", 2))
sketch25.addConstraint(Sketcher.Constraint("Horizontal", 3))
sketch25.addConstraint(Sketcher.Constraint("PointOnObject", 0, 2, -1))
sketch25.addConstraint(Sketcher.Constraint("DistanceX", 1, 1, 1, 2, Q("19 mm")))
sketch25.addConstraint(Sketcher.Constraint("DistanceY", 0, 2, 0, 1, Q("100 mm")))
sketch25.addConstraint(Sketcher.Constraint("DistanceX", -1, 1, 0, 2, Q("135 mm")))
pad25 = body27.newObject("PartDesign::Pad", "Pad024")
pad25.Profile = sketch25
pad25.Length = 4
doc.recompute()

boolean20 = body27.newObject("PartDesign::Boolean", "Boolean019")
boolean20.Type = "Cut"
boolean20.addObjects([body10])

doc.recompute()
